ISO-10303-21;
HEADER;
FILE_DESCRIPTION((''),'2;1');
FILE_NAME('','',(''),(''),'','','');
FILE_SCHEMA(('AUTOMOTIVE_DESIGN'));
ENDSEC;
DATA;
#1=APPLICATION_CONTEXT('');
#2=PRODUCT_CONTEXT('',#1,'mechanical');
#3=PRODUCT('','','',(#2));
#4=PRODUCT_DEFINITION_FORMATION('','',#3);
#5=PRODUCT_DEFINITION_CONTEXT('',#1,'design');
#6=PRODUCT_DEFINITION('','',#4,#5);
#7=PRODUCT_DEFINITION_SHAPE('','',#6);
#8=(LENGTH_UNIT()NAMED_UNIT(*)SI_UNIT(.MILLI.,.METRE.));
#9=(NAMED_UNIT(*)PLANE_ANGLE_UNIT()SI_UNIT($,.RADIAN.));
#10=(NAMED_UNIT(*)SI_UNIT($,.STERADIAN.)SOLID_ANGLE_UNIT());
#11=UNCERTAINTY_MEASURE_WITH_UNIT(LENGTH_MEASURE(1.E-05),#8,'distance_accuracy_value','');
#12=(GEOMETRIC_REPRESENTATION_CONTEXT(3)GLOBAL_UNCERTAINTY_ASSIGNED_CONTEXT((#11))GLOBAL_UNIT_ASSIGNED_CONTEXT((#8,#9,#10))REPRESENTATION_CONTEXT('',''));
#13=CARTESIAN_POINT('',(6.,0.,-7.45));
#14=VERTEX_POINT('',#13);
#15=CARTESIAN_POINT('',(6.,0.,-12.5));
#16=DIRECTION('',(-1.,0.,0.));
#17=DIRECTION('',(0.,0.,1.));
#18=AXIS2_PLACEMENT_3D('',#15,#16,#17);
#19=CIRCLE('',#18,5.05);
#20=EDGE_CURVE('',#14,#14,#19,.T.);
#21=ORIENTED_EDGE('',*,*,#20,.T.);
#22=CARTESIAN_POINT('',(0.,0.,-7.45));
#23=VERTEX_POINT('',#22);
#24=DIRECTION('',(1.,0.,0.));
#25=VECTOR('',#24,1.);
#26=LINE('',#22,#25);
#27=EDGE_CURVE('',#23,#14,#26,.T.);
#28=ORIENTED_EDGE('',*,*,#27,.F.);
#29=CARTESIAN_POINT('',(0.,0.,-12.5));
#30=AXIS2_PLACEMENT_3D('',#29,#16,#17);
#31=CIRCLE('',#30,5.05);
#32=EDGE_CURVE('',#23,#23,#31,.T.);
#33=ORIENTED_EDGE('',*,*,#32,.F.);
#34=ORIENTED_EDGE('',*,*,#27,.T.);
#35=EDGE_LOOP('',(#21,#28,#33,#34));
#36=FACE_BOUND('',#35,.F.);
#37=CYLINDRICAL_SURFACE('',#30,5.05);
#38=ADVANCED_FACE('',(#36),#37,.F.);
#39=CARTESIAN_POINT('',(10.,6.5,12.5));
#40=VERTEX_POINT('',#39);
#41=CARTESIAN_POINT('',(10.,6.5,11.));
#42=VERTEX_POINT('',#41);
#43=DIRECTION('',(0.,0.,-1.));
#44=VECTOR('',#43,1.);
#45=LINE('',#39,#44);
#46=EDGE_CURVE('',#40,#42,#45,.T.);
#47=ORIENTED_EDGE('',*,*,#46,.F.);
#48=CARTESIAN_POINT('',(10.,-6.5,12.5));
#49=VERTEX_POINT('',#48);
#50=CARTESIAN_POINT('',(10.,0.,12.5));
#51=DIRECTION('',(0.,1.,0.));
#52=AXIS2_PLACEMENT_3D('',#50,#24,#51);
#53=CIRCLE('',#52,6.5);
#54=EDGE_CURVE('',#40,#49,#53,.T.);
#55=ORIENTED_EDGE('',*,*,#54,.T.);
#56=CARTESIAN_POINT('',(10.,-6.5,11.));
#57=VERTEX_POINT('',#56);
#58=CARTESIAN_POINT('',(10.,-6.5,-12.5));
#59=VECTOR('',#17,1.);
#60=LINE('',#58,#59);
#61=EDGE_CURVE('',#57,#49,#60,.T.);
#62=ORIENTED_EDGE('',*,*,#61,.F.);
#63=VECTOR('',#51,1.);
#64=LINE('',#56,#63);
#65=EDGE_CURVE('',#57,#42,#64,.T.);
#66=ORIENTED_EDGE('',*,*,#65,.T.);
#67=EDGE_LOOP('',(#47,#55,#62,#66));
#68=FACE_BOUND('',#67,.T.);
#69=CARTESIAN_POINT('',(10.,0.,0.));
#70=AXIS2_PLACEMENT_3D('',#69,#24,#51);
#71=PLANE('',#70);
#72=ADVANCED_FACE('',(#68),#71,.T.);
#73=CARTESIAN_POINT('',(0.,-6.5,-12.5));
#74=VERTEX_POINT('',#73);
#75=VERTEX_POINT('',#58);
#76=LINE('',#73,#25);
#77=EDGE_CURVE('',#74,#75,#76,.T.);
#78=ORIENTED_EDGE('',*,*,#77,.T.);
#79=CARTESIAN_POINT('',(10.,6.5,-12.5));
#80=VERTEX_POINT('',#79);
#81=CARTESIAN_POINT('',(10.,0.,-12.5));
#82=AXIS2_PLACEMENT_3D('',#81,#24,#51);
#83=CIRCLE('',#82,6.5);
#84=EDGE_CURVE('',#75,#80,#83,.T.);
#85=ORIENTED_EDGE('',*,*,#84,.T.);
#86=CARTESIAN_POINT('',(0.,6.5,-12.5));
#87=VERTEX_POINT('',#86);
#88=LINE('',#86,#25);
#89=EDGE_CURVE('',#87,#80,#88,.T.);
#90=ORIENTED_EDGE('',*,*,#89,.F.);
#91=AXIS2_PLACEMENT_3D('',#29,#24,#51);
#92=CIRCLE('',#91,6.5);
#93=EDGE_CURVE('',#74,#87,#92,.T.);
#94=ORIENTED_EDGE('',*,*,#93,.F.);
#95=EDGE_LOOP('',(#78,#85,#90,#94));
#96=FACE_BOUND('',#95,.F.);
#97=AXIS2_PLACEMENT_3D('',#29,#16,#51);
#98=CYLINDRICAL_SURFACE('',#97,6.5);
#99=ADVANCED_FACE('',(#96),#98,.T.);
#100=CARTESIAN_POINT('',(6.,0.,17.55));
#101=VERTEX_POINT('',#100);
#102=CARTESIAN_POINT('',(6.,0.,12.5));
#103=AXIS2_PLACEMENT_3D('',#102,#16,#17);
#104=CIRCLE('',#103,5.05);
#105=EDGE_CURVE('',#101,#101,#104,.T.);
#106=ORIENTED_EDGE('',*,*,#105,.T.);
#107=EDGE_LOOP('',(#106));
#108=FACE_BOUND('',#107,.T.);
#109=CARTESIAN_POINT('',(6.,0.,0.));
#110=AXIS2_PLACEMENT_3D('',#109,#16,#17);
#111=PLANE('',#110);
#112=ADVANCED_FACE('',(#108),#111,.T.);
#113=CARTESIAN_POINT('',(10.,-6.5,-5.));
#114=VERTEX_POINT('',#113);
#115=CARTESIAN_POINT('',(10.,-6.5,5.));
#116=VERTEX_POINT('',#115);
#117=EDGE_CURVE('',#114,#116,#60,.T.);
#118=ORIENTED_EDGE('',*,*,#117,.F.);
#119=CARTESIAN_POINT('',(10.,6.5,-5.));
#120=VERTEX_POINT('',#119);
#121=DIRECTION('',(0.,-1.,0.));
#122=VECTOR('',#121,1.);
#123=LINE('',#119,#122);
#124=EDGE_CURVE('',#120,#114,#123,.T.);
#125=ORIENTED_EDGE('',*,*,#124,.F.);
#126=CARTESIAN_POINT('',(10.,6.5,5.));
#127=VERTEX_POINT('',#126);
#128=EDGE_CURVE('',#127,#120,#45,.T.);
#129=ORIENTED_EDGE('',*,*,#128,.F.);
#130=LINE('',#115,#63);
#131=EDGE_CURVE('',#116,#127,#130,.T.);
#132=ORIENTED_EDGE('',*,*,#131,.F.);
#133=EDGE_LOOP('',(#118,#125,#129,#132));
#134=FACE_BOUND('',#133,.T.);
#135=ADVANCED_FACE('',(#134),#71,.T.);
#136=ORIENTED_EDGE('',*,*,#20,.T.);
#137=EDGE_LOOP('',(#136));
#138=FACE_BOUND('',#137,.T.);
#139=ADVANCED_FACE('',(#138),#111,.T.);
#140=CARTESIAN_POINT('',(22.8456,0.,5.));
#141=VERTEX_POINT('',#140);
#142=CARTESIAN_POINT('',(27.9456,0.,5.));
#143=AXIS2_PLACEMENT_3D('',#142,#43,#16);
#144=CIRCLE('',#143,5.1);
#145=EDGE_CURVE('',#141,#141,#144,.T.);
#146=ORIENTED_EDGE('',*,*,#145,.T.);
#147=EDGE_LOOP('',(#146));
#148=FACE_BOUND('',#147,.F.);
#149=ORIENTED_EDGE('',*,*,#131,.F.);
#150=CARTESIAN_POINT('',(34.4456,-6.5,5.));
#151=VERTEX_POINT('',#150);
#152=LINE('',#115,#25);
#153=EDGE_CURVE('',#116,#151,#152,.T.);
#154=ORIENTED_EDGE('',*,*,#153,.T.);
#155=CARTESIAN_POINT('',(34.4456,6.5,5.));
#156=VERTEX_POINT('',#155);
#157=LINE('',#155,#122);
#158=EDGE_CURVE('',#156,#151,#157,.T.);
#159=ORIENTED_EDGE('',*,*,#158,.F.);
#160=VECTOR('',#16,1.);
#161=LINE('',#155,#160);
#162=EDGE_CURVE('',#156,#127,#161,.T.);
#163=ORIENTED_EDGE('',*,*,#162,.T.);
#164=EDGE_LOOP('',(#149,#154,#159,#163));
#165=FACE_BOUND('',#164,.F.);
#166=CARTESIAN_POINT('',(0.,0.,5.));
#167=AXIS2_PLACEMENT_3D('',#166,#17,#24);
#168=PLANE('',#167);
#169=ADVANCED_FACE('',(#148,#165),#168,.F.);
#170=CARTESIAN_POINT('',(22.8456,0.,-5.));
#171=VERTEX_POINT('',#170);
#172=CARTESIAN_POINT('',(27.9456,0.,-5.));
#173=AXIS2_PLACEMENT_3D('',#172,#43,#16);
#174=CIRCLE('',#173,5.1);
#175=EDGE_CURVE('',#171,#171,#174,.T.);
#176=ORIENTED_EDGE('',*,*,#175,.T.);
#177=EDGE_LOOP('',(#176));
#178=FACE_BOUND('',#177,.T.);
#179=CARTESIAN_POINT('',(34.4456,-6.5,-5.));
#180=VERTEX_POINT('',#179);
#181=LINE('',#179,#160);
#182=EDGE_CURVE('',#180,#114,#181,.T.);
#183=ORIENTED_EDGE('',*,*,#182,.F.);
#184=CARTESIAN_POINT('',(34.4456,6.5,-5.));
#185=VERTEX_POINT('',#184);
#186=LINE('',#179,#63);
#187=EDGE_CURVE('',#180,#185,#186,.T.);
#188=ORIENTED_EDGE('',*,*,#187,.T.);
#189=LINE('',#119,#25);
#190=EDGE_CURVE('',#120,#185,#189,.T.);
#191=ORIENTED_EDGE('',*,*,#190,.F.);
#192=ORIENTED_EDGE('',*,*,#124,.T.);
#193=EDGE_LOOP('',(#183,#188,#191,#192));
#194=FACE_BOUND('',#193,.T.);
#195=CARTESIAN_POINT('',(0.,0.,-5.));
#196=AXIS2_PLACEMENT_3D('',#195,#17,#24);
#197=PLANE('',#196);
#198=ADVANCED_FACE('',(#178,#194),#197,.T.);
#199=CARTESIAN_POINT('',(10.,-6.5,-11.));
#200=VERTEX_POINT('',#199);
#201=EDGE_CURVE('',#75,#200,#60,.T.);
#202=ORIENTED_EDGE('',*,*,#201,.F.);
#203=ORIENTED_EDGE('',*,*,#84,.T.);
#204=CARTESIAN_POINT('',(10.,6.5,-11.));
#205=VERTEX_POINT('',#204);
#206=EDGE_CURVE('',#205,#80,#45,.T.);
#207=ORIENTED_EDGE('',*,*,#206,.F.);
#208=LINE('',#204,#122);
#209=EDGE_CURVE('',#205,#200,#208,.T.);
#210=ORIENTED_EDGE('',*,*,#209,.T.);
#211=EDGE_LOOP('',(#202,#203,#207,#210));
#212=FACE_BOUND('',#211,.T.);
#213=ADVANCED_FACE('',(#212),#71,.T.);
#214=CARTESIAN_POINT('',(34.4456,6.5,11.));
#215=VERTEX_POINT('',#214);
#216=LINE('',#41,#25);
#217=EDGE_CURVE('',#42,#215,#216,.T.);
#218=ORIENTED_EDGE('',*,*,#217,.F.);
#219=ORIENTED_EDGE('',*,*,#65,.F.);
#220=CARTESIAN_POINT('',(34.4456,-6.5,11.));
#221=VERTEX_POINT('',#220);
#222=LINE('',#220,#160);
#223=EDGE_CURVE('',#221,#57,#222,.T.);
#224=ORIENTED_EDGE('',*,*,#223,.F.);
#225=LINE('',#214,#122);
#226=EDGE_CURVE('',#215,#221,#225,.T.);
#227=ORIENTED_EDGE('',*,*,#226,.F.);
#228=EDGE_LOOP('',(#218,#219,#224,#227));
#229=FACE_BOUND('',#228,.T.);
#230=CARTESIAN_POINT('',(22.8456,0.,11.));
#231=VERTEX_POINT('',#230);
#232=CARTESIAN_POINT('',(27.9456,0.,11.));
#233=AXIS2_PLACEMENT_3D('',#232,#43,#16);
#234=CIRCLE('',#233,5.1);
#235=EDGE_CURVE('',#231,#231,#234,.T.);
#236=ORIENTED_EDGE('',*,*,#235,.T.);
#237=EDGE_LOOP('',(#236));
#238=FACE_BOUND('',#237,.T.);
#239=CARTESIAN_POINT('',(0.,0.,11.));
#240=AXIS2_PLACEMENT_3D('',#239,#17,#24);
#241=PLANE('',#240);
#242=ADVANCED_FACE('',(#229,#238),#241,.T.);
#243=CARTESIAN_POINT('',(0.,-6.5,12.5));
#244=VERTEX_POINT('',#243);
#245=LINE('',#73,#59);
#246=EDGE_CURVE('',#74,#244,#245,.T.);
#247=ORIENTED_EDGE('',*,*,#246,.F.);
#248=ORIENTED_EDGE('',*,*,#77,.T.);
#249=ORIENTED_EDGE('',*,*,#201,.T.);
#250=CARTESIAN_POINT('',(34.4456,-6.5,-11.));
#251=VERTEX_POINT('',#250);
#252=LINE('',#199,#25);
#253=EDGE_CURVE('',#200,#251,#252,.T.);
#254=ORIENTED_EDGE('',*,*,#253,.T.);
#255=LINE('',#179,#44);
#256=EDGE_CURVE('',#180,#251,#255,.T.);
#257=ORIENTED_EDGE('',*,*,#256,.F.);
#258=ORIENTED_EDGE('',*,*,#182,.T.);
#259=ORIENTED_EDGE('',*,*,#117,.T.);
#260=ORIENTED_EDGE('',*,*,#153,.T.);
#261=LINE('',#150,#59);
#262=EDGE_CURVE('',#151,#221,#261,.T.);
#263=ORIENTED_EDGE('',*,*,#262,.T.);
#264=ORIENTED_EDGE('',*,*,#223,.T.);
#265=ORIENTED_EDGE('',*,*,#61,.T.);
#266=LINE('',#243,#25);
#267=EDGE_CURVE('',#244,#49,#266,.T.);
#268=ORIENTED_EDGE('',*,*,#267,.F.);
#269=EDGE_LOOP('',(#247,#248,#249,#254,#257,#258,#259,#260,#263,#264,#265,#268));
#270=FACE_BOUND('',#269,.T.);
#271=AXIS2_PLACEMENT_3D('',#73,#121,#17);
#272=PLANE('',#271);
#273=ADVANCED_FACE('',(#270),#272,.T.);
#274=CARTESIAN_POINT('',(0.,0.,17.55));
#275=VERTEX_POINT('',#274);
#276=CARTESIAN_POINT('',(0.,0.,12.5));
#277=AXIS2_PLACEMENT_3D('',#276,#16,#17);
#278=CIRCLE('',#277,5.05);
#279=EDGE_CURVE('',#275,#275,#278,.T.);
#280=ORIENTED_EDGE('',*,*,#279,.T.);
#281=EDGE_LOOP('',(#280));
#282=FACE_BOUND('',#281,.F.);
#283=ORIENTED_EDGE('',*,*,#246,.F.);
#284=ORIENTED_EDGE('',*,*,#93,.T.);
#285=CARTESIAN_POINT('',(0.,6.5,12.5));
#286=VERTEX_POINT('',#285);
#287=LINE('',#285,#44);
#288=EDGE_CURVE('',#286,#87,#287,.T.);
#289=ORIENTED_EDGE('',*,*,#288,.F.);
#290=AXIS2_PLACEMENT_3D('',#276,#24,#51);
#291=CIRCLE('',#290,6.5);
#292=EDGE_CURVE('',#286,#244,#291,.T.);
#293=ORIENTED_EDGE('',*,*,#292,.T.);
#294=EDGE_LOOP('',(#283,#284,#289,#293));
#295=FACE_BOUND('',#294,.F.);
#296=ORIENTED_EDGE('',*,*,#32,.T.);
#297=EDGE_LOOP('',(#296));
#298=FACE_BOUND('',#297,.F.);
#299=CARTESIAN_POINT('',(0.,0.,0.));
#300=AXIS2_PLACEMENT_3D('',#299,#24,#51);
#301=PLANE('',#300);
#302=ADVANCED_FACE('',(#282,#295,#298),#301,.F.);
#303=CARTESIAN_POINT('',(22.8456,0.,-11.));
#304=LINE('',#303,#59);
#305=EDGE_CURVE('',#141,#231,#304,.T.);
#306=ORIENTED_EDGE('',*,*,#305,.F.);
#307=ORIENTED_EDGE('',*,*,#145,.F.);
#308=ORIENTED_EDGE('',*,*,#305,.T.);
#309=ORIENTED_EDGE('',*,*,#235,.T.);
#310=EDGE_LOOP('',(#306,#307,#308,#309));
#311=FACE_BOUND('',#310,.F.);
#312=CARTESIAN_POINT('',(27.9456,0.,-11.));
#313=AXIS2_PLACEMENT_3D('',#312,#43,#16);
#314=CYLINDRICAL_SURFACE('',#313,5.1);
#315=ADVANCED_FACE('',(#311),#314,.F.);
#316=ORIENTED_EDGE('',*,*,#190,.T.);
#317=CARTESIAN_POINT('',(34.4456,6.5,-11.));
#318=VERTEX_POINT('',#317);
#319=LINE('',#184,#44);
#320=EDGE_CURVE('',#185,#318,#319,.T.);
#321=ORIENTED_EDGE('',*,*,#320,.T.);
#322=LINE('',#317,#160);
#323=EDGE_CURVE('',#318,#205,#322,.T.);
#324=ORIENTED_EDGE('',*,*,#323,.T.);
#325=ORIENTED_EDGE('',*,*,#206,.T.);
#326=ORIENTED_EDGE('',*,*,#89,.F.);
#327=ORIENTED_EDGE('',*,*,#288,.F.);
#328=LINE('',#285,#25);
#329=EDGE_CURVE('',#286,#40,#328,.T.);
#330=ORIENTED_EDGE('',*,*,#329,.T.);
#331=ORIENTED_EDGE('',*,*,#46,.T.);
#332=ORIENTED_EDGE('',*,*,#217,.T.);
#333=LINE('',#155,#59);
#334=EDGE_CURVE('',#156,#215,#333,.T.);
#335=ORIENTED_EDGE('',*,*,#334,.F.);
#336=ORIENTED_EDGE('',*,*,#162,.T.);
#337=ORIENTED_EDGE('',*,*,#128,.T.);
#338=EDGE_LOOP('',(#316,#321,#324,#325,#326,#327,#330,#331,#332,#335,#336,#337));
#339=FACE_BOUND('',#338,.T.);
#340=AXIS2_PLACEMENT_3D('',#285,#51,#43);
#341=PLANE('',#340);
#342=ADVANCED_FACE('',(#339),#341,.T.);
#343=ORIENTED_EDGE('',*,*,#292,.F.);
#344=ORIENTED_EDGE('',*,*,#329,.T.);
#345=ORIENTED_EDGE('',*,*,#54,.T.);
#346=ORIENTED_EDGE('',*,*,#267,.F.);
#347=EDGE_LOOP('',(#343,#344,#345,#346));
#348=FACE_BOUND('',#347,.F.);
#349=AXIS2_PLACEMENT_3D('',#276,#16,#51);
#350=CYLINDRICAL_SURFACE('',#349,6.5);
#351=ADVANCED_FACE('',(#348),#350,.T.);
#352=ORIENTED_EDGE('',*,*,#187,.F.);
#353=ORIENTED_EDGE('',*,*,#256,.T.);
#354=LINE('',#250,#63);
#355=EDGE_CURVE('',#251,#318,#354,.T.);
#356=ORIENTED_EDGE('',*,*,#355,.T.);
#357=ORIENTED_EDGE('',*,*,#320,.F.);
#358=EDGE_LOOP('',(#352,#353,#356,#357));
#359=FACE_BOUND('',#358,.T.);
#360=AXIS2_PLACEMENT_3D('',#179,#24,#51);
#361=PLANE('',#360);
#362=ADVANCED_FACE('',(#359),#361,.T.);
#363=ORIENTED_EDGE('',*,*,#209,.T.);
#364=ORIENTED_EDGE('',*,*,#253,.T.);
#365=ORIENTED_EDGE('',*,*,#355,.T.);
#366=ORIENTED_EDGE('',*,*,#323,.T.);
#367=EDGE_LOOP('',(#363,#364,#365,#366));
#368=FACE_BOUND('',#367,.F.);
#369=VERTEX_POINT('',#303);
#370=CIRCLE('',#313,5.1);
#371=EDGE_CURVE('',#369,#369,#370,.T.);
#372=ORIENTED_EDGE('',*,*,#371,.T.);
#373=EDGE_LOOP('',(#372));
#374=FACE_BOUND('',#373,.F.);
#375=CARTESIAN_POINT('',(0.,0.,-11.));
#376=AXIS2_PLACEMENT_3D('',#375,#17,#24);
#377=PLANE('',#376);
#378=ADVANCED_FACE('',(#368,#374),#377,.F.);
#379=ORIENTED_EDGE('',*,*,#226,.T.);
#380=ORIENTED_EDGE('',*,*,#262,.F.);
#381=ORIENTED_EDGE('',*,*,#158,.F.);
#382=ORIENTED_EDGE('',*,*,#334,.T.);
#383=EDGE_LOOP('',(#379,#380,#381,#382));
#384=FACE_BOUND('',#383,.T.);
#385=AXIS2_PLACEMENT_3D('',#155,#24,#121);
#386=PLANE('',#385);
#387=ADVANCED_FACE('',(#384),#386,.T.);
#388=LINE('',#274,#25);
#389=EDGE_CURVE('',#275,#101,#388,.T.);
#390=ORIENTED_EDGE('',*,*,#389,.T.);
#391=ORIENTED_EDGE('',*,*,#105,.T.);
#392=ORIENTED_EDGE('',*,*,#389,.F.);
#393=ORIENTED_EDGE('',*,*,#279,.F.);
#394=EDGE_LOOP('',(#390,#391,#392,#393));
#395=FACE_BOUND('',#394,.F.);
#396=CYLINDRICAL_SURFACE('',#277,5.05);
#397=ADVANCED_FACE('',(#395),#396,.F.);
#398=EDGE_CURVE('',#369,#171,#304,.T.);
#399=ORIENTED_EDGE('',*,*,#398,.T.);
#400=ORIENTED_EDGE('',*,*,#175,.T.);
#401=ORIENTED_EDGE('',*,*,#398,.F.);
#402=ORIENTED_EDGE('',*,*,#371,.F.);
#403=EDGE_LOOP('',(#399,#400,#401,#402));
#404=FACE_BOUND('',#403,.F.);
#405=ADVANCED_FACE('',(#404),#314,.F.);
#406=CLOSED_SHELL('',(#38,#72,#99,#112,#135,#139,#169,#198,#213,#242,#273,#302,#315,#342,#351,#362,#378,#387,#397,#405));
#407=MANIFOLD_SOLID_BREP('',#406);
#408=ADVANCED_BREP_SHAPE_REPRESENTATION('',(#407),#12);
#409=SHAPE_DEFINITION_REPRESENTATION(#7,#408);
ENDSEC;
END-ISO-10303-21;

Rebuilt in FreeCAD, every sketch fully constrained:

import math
import FreeCAD as App
import Part
import Sketcher

V = App.Vector
Q = App.Units.Quantity


def add_polygon(sketch, points):
    """Adds a closed chain of lines whose ends are joined by coincident constraints."""
    first, n = sketch.GeometryCount, len(points)
    for a, b in zip(points, points[1:] + points[:1]):
        sketch.addGeometry(Part.LineSegment(App.Vector(*a, 0), App.Vector(*b, 0)), False)
    for i in range(n):
        sketch.addConstraint(Sketcher.Constraint("Coincident", first + i, 2, first + (i + 1) % n, 1))

doc = App.newDocument("Part")
body = doc.addObject("PartDesign::Body", "Body")

# Sketch on YZ plane
sketch1 = body.newObject("Sketcher::SketchObject", "Sketch")
sketch1.AttachmentSupport = (doc.getObject("YZ_Plane"), [""])
sketch1.MapMode = "FlatFace"
sketch1.addGeometry([
    Part.ArcOfCircle(Part.Circle(V(0, 12.5, 0), V(0, 0, 1), 6.5), math.radians(0), math.radians(180)),
    Part.LineSegment(V(-6.5, 12.5, 0), V(-6.5, -12.5, 0)),
    Part.ArcOfCircle(Part.Circle(V(0, -12.5, 0), V(0, 0, 1), 6.5), math.radians(180), math.radians(360)),
    Part.LineSegment(V(6.5, -12.5, 0), V(6.5, 12.5, 0)),
], False)
sketch1.addConstraint([
    Sketcher.Constraint("Tangent", 0, 2, 1, 1),
    Sketcher.Constraint("Tangent", 1, 2, 2, 1),
    Sketcher.Constraint("Tangent", 2, 2, 3, 1),
    Sketcher.Constraint("Tangent", 3, 2, 0, 1),
    Sketcher.Constraint("Vertical", 1),
    Sketcher.Constraint("Vertical", 3),
    Sketcher.Constraint("Symmetric", 0, 3, 2, 3, -1, 1),
    Sketcher.Constraint("Radius", 0, Q("6.5 mm")),
    Sketcher.Constraint("DistanceY", -1, 1, 0, 3, Q("12.5 mm")),
])
pad1 = body.newObject("PartDesign::Pad", "Pad")
pad1.Profile = sketch1
pad1.Length = 10

# Sketch on YZ plane
sketch2 = body.newObject("Sketcher::SketchObject", "Sketch001")
sketch2.AttachmentSupport = (doc.getObject("YZ_Plane"), [""])
sketch2.MapMode = "FlatFace"
sketch2.addGeometry([
    Part.Circle(V(0, -12.5, 0), V(0, 0, 1), 5.05),
    Part.Circle(V(0, 12.5, 0), V(0, 0, 1), 5.05),
], False)
sketch2.addConstraint([
    Sketcher.Constraint("Equal", 0, 1),
    Sketcher.Constraint("Symmetric", 0, 3, 1, 3, -1, 1),
    Sketcher.Constraint("PointOnObject", 0, 3, -2),
    Sketcher.Constraint("Diameter", 0, Q("10.1 mm")),
    Sketcher.Constraint("DistanceY", 0, 3, 1, 3, Q("25 mm")),
])
pocket1 = body.newObject("PartDesign::Pocket", "Pocket")
pocket1.Profile = sketch2
pocket1.Length = 6
pocket1.Reversed = True

# Sketch on XY plane
sketch3 = body.newObject("Sketcher::SketchObject", "Sketch002")
sketch3.AttachmentSupport = (doc.getObject("XY_Plane"), [""])
sketch3.MapMode = "FlatFace"
sketch3.AttachmentOffset = App.Placement(V(0, 0, 5), App.Rotation())
add_polygon(sketch3, [(10, 6.5), (10, -6.5), (34.4456, -6.5), (34.4456, 6.5)])  # lines 0-3
sketch3.addConstraint([
    Sketcher.Constraint("Vertical", 0),
    Sketcher.Constraint("Horizontal", 1),
    Sketcher.Constraint("Vertical", 2),
    Sketcher.Constraint("Horizontal", 3),
    Sketcher.Constraint("DistanceY", 0, 2, 0, 1, Q("13 mm")),
    Sketcher.Constraint("DistanceX", -1, 1, 0, 2, Q("10 mm")),
    Sketcher.Constraint("DistanceY", 0, 2, -1, 1, Q("6.5 mm")),
    Sketcher.Constraint("DistanceX", 1, 1, 1, 2, Q("24.4456 mm")),
])
pad2 = body.newObject("PartDesign::Pad", "Pad001")
pad2.Profile = sketch3
pad2.Length = 6

# Sketch on XY plane
sketch4 = body.newObject("Sketcher::SketchObject", "Sketch003")
sketch4.AttachmentSupport = (doc.getObject("XY_Plane"), [""])
sketch4.MapMode = "FlatFace"
sketch4.AttachmentOffset = App.Placement(V(0, 0, -5), App.Rotation())
add_polygon(sketch4, [(34.4456, -6.5), (34.4456, 6.5), (10, 6.5), (10, -6.5)])  # lines 0-3
sketch4.addConstraint([
    Sketcher.Constraint("Vertical", 0),
    Sketcher.Constraint("Horizontal", 1),
    Sketcher.Constraint("Vertical", 2),
    Sketcher.Constraint("Horizontal", 3),
    Sketcher.Constraint("DistanceY", 0, 1, 0, 2, Q("13 mm")),
    Sketcher.Constraint("DistanceX", 1, 2, 1, 1, Q("24.4456 mm")),
    Sketcher.Constraint("DistanceX", -1, 1, 1, 2, Q("10 mm")),
    Sketcher.Constraint("DistanceY", -1, 1, 0, 2, Q("6.5 mm")),
])
pad3 = body.newObject("PartDesign::Pad", "Pad002")
pad3.Profile = sketch4
pad3.Length = 6
pad3.Reversed = True

# Sketch on XY plane
sketch5 = body.newObject("Sketcher::SketchObject", "Sketch004")
sketch5.AttachmentSupport = (doc.getObject("XY_Plane"), [""])
sketch5.MapMode = "FlatFace"
sketch5.AttachmentOffset = App.Placement(V(0, 0, -11), App.Rotation())
sketch5.addGeometry(Part.Circle(V(27.9456, 0, 0), V(0, 0, 1), 5.1), False)
sketch5.addConstraint([
    Sketcher.Constraint("PointOnObject", 0, 3, -1),
    Sketcher.Constraint("Diameter", 0, Q("10.2 mm")),
    Sketcher.Constraint("DistanceX", -1, 1, 0, 3, Q("27.9456 mm")),
])
pocket2 = body.newObject("PartDesign::Pocket", "Pocket001")
pocket2.Profile = sketch5
pocket2.Type = "ThroughAll"
pocket2.Reversed = True

doc.recompute()
